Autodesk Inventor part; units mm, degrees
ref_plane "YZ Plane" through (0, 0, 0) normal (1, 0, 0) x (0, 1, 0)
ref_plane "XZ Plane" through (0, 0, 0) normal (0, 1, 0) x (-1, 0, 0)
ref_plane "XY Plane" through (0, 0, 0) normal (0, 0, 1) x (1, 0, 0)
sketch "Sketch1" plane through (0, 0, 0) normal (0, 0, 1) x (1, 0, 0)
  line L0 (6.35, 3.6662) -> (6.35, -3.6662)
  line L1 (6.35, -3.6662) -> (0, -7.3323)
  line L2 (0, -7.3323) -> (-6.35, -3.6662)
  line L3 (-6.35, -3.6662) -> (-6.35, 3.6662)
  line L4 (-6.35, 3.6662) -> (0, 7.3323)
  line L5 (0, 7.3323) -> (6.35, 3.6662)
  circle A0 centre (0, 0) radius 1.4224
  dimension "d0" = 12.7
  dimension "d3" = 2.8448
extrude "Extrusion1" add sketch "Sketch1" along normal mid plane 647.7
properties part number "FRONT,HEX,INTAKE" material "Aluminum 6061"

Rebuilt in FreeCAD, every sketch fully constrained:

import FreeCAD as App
import Part
import Sketcher
from FreeCAD import Vector
Q = App.Units.Quantity


def add_polygon(sketch, points):
    """Adds a closed chain of lines whose ends are joined by coincident constraints."""
    first, n = sketch.GeometryCount, len(points)
    for a, b in zip(points, points[1:] + points[:1]):
        sketch.addGeometry(Part.LineSegment(App.Vector(*a, 0), App.Vector(*b, 0)), False)
    for i in range(n):
        sketch.addConstraint(Sketcher.Constraint("Coincident", first + i, 2, first + (i + 1) % n, 1))

doc = App.newDocument("Part")
params = doc.addObject("Spreadsheet::Sheet", "Params")
for row, (alias, value) in enumerate([
    ("sketch1_diameter", "0.112 in"),
    ("pad1_length", "25.5 in"),
], start=1):
    params.set(f"A{row}", alias)
    params.set(f"B{row}", "=" + value)
    params.setAlias(f"B{row}", alias)

body = doc.addObject("PartDesign::Body", "Body")

sketch1 = body.newObject("Sketcher::SketchObject", "Sketch")
sketch1.AttachmentSupport = (doc.getObject("XY_Plane"), [""])
sketch1.MapMode = "FlatFace"
add_polygon(sketch1, [(6.35, -3.6662), (6.35, 3.6662), (0, 7.3323), (-6.35, 3.6662), (-6.35, -3.6662), (0, -7.3323)])
sketch1.addGeometry(Part.Circle(Vector(0, 0, 0), Vector(0, 0, 1), 1.4224), False)
sketch1.addConstraint([
    Sketcher.Constraint("Vertical", 0),
    Sketcher.Constraint("Vertical", 3),
    Sketcher.Constraint("Coincident", 6, 3, -1, 1),
    Sketcher.Constraint("Symmetric", 0, 2, 3, 2, -1, 1),
    Sketcher.Constraint("Symmetric", 1, 2, 4, 2, -1, 1),
    Sketcher.Constraint("PointOnObject", 1, 2, -2),
    Sketcher.Constraint("Parallel", 2, 5),
    Sketcher.Constraint("Horizontal", 0, 2, 2, 2),
    Sketcher.Constraint("Diameter", 6, Q("0.112 in")),
    Sketcher.Constraint("DistanceX", 2, 2, 0, 2, Q("0.5 in")),
    Sketcher.Constraint("Angle", 1, Q("150.0005 deg")),
    Sketcher.Constraint("DistanceY", 3, 2, 1, 2, Q("0.433 in")),
])
sketch1.setExpression("Constraints[14]", "Params.sketch1_diameter")
pad1 = body.newObject("PartDesign::Pad", "Pad")
pad1.Profile = sketch1
pad1.setExpression("Length", "Params.pad1_length")
pad1.Midplane = True

doc.recompute()
